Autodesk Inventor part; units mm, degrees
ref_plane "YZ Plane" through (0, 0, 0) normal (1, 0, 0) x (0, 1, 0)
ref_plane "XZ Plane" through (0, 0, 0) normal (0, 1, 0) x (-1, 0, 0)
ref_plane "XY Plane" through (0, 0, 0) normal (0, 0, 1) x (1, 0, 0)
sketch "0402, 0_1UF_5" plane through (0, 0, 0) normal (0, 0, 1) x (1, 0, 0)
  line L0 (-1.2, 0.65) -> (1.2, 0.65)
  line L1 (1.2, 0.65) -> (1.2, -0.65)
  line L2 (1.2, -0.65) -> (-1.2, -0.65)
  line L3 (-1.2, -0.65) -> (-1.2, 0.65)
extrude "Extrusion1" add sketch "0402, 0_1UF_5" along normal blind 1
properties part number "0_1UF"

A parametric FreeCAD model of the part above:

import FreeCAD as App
import Part
import Sketcher


def add_polygon(sketch, points):
    """Adds a closed chain of lines whose ends are joined by coincident constraints."""
    first, n = sketch.GeometryCount, len(points)
    for a, b in zip(points, points[1:] + points[:1]):
        sketch.addGeometry(Part.LineSegment(App.Vector(*a, 0), App.Vector(*b, 0)), False)
    for i in range(n):
        sketch.addConstraint(Sketcher.Constraint("Coincident", first + i, 2, first + (i + 1) % n, 1))

doc = App.newDocument("Part")
body = doc.addObject("PartDesign::Body", "Body")

sketch1 = body.newObject("Sketcher::SketchObject", "Sketch")
sketch1.AttachmentSupport = (doc.getObject("XY_Plane"), [""])
sketch1.MapMode = "FlatFace"
add_polygon(sketch1, [(1.2, 0.65), (-1.2, 0.65), (-1.2, -0.65), (1.2, -0.65)])
sketch1.addConstraint([
    Sketcher.Constraint("Horizontal", 0),
    Sketcher.Constraint("Vertical", 1),
    Sketcher.Constraint("Horizontal", 2),
    Sketcher.Constraint("Vertical", 3),
    Sketcher.Constraint("Symmetric", 0, 2, 2, 2, -1, 1),
    Sketcher.Constraint("DistanceX", 0, 2, 0, 1, 2.4),
    Sketcher.Constraint("DistanceY", 1, 2, 1, 1, 1.3),
])
pad1 = body.newObject("PartDesign::Pad", "Pad")
pad1.Profile = sketch1
pad1.Length = 1

doc.recompute()
